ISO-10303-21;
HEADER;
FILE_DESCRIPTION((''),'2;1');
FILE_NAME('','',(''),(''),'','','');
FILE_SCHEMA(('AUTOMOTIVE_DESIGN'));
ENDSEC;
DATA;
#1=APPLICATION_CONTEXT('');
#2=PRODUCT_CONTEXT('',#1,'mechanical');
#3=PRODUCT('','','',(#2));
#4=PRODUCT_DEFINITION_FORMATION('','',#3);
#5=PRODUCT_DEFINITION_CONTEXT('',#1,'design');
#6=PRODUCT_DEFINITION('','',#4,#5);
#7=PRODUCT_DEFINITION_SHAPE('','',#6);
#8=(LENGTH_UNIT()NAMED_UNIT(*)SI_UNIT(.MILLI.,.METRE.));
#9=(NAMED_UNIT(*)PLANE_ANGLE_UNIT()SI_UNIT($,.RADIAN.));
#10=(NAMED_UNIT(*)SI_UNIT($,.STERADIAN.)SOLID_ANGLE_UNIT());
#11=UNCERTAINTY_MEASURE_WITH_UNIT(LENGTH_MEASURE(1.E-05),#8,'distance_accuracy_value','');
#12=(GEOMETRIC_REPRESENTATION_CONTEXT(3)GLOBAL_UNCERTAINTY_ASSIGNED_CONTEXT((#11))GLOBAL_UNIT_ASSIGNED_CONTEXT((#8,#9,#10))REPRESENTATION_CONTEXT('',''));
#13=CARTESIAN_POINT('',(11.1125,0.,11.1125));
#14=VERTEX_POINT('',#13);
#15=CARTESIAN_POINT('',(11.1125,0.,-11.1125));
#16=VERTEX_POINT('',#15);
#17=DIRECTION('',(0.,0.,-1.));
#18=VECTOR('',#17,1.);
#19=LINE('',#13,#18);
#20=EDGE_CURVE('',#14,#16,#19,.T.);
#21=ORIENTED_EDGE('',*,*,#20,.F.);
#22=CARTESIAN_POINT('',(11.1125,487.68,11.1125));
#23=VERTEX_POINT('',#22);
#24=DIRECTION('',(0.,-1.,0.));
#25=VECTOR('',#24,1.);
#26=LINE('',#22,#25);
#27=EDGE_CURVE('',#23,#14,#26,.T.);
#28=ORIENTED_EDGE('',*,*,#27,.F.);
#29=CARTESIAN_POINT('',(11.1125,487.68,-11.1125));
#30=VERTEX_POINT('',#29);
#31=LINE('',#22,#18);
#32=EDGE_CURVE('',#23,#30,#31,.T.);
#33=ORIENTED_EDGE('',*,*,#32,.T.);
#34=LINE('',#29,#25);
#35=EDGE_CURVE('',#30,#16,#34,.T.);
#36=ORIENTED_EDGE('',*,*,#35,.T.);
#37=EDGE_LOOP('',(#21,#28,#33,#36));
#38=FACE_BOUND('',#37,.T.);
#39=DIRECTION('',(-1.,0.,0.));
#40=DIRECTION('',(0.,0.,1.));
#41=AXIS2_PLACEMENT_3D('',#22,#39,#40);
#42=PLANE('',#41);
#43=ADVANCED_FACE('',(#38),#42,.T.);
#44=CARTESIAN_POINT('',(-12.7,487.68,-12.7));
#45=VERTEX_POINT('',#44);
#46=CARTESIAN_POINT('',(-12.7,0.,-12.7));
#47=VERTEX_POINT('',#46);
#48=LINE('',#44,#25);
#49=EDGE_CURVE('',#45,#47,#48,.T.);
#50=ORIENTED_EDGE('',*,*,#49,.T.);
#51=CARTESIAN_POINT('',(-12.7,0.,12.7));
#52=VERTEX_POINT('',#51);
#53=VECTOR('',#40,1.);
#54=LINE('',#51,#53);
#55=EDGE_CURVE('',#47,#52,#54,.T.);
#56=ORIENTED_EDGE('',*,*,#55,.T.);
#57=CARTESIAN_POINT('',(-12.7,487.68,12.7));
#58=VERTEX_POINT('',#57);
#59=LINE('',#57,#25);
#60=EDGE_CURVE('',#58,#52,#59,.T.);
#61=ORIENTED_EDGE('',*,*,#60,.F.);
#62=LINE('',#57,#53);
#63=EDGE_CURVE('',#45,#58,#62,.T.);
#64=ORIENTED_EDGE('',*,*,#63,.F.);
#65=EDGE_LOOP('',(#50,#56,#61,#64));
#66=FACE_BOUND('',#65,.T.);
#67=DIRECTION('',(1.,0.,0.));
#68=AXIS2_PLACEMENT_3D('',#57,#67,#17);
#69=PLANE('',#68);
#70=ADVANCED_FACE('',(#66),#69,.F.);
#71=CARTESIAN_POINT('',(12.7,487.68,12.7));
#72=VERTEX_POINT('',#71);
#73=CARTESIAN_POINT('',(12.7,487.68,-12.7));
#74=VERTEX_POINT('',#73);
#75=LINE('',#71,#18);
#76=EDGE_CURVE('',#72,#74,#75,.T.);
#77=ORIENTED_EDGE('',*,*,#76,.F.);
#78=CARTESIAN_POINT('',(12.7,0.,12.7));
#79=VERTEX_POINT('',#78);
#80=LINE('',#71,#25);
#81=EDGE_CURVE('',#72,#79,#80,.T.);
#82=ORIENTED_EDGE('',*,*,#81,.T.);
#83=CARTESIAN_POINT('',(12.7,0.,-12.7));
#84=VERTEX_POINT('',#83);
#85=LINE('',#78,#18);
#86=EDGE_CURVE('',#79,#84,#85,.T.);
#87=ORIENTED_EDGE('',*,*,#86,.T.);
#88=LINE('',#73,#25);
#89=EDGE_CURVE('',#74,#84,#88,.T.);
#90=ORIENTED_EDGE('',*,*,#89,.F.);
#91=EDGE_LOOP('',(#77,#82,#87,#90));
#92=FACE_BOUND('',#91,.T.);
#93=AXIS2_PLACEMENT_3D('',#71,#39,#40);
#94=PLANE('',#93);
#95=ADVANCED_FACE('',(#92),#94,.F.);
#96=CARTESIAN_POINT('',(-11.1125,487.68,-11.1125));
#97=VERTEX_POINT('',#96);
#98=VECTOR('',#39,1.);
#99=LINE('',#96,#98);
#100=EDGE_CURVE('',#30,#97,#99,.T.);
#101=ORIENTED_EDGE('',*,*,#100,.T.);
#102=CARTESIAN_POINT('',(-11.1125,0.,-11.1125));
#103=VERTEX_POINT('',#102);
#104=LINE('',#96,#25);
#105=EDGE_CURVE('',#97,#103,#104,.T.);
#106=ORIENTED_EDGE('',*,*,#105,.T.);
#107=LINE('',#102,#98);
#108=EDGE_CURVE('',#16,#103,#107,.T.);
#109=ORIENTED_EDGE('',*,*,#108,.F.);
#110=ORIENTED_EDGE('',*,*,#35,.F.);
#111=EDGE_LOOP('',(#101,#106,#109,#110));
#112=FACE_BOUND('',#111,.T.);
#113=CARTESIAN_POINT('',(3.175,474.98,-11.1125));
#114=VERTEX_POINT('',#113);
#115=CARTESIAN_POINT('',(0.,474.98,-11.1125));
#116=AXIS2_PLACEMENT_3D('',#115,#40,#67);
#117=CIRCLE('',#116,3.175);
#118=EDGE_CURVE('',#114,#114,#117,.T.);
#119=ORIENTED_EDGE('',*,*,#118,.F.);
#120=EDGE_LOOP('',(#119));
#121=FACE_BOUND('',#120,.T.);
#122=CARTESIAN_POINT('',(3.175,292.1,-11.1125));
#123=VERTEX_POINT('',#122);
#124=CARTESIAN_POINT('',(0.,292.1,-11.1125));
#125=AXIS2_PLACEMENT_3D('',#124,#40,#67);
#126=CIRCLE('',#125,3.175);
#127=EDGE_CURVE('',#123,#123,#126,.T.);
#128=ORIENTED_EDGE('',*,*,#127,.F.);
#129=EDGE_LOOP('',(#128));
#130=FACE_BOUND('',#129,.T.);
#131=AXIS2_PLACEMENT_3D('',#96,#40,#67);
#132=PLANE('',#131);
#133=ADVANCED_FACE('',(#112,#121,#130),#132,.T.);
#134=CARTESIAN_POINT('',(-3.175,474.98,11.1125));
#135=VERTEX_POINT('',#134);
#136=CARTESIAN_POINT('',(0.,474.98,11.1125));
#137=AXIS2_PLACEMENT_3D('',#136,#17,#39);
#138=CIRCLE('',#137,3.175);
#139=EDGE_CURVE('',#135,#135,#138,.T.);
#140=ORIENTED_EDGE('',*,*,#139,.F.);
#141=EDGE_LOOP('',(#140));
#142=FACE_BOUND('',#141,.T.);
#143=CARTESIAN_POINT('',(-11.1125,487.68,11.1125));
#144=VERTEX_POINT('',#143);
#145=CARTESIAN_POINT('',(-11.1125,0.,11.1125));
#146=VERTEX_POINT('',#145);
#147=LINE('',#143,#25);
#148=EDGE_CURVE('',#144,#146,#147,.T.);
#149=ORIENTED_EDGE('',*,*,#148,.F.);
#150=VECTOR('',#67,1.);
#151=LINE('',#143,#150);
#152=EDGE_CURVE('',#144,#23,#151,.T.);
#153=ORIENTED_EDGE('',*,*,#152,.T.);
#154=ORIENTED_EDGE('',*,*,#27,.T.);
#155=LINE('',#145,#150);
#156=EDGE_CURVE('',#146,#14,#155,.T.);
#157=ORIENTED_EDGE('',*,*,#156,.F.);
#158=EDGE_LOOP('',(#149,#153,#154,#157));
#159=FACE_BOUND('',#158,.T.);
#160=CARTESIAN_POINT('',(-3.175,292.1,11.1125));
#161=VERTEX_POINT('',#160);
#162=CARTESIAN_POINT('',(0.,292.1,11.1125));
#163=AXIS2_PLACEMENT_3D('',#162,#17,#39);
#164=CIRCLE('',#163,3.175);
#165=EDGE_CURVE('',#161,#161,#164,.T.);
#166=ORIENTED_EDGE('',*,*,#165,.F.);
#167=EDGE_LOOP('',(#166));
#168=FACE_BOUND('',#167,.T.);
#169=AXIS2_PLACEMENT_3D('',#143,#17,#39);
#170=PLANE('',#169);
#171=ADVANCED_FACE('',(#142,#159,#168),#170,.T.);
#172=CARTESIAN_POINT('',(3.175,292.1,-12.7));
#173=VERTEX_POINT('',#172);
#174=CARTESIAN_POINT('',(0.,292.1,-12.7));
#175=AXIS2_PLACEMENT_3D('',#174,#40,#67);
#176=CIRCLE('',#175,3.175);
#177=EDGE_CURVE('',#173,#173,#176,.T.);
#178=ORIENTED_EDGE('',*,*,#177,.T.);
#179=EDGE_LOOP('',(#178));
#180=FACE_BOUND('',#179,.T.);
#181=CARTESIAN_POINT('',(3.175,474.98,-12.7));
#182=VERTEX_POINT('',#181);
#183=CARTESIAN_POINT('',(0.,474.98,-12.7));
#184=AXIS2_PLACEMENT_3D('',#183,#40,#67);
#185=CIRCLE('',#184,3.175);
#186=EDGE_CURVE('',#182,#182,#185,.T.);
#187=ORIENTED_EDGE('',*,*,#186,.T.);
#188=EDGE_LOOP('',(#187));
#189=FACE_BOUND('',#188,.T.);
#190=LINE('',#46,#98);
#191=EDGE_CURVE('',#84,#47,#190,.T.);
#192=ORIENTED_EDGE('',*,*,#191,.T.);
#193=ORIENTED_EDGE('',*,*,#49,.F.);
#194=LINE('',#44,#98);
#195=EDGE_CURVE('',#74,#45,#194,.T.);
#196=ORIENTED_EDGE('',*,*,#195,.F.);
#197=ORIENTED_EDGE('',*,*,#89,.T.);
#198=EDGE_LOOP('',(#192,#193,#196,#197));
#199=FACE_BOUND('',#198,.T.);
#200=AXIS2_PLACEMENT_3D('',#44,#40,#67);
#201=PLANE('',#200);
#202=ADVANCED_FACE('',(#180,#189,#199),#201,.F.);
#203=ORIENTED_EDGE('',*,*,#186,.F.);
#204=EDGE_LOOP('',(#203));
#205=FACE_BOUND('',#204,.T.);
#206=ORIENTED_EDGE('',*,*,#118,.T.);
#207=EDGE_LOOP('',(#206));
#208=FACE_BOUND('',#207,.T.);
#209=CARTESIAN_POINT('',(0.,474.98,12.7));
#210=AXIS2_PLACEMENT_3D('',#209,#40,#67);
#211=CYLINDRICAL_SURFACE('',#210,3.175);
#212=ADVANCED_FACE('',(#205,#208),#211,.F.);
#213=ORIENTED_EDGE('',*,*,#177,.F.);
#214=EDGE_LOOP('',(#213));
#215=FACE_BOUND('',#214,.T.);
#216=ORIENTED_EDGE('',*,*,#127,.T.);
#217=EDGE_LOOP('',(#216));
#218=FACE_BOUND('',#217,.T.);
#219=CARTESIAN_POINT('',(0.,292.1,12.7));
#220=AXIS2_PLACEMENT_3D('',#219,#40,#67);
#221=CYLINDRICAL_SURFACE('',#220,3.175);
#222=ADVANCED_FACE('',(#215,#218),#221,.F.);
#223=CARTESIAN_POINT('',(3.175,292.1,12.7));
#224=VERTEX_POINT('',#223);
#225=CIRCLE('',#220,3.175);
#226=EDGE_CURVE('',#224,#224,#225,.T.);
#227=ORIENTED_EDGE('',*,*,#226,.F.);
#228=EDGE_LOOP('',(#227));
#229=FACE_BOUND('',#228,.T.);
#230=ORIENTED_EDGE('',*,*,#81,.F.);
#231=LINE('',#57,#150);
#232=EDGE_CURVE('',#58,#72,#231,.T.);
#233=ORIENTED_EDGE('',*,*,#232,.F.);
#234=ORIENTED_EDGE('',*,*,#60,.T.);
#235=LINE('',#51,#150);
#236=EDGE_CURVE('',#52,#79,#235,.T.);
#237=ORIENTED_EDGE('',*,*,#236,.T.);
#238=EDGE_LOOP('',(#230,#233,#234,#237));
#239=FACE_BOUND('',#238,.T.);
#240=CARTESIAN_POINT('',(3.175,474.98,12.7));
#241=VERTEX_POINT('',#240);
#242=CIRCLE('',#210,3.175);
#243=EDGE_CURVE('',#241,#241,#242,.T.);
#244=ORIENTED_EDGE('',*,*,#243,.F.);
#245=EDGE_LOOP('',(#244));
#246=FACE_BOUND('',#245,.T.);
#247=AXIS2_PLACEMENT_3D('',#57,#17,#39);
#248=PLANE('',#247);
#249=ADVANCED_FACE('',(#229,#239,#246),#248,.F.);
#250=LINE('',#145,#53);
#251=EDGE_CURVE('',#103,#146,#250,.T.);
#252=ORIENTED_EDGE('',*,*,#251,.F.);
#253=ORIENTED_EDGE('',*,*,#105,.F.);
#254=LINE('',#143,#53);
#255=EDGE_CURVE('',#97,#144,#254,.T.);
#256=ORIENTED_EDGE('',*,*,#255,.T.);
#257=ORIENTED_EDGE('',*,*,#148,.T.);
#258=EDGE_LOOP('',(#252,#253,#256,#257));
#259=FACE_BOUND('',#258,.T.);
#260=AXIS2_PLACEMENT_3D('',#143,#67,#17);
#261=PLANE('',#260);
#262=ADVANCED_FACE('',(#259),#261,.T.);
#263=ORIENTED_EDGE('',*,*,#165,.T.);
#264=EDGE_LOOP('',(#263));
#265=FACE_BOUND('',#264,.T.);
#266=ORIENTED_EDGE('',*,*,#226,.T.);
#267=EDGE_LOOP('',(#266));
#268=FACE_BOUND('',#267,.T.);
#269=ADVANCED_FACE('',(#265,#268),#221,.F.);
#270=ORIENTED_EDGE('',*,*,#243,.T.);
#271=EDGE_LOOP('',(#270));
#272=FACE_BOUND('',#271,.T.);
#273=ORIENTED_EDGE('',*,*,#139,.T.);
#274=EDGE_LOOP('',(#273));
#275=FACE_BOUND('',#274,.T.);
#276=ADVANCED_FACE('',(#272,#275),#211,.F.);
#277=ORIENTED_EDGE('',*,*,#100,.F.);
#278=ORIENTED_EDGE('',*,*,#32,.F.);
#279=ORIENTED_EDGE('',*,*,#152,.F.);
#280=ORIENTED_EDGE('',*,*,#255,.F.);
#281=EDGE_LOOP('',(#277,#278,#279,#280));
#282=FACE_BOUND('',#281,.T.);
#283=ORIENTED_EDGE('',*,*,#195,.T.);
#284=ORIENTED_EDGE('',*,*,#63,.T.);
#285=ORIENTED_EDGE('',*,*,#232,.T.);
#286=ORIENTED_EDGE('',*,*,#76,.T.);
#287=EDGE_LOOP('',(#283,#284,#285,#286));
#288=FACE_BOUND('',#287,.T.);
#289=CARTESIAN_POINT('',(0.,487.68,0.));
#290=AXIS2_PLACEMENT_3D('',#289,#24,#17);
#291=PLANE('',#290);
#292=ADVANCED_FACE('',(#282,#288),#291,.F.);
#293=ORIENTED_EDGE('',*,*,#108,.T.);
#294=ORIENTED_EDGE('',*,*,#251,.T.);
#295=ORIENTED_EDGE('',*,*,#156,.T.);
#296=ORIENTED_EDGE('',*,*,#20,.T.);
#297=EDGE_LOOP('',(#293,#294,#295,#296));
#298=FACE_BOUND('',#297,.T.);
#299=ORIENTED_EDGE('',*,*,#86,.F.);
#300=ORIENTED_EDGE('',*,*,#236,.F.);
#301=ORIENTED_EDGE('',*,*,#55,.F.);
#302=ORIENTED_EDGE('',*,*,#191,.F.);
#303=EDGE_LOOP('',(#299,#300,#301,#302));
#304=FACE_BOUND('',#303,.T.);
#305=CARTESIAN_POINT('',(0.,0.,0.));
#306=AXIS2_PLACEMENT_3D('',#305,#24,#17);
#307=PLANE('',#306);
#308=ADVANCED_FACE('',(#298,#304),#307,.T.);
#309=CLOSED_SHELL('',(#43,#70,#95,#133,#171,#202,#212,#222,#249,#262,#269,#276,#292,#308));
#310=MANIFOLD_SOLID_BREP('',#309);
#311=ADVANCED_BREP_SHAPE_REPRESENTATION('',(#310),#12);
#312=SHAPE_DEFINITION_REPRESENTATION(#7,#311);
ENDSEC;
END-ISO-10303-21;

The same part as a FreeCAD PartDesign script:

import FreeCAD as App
import Part
import Sketcher
from FreeCAD import Vector
Q = App.Units.Quantity


def add_polygon(sketch, points):
    """Adds a closed chain of lines whose ends are joined by coincident constraints."""
    first, n = sketch.GeometryCount, len(points)
    for a, b in zip(points, points[1:] + points[:1]):
        sketch.addGeometry(Part.LineSegment(App.Vector(*a, 0), App.Vector(*b, 0)), False)
    for i in range(n):
        sketch.addConstraint(Sketcher.Constraint("Coincident", first + i, 2, first + (i + 1) % n, 1))

doc = App.newDocument("Part")
body = doc.addObject("PartDesign::Body", "Body")

# Sketch on XZ plane
sketch1 = body.newObject("Sketcher::SketchObject", "Sketch")
sketch1.AttachmentSupport = (doc.getObject("XZ_Plane"), [""])
sketch1.MapMode = "FlatFace"
add_polygon(sketch1, [(-13, -13), (-13, 13), (13, 13), (13, -13)])  # lines 0-3
add_polygon(sketch1, [(11, 11), (-11, 11), (-11, -11), (11, -11)])  # lines 4-7
sketch1.addConstraint([
    Sketcher.Constraint("Vertical", 0),
    Sketcher.Constraint("Horizontal", 1),
    Sketcher.Constraint("Vertical", 2),
    Sketcher.Constraint("Horizontal", 3),
    Sketcher.Constraint("Horizontal", 4),
    Sketcher.Constraint("Vertical", 5),
    Sketcher.Constraint("Horizontal", 6),
    Sketcher.Constraint("Vertical", 7),
    Sketcher.Constraint("Symmetric", 0, 2, 2, 2, -1, 1),
    Sketcher.Constraint("Symmetric", 4, 2, 6, 2, -1, 1),
    Sketcher.Constraint("Equal", 3, 0),
    Sketcher.Constraint("Equal", 6, 5),
    Sketcher.Constraint("DistanceX", 1, 1, 1, 2, Q("1 in")),
    Sketcher.Constraint("DistanceX", 4, 2, 4, 1, Q("0.875 in")),
])
pad1 = body.newObject("PartDesign::Pad", "Pad")
pad1.Profile = sketch1
pad1.Length = Q("19.2 in")
pad1.Reversed = True

# Sketch on XY plane
sketch2 = body.newObject("Sketcher::SketchObject", "Sketch001")
sketch2.AttachmentSupport = (doc.getObject("XY_Plane"), [""])
sketch2.MapMode = "FlatFace"
sketch2.AttachmentOffset = App.Placement(Vector(0, 0, 0.5 * 25.4), App.Rotation())
sketch2.addGeometry([
    Part.Circle(Vector(0, 475, 0), Vector(0, 0, 1), 3.2),
    Part.Circle(Vector(0, 292.1, 0), Vector(0, 0, 1), 3.2),
], False)
sketch2.addConstraint([
    Sketcher.Constraint("Equal", 0, 1),
    Sketcher.Constraint("PointOnObject", 0, 3, -2),
    Sketcher.Constraint("PointOnObject", 1, 3, -2),
    Sketcher.Constraint("Diameter", 0, Q("0.25 in")),
    Sketcher.Constraint("DistanceY", -1, 1, 0, 3, Q("18.7 in")),
    Sketcher.Constraint("DistanceY", -1, 1, 1, 3, Q("11.5 in")),
])
doc.recompute()
hole = body.newObject("PartDesign::Hole", "Hole")
hole.Profile = sketch2
hole.ThreadType = "None"
hole.Diameter = Q("0.25 in")
hole.DepthType = "ThroughAll"

doc.recompute()
